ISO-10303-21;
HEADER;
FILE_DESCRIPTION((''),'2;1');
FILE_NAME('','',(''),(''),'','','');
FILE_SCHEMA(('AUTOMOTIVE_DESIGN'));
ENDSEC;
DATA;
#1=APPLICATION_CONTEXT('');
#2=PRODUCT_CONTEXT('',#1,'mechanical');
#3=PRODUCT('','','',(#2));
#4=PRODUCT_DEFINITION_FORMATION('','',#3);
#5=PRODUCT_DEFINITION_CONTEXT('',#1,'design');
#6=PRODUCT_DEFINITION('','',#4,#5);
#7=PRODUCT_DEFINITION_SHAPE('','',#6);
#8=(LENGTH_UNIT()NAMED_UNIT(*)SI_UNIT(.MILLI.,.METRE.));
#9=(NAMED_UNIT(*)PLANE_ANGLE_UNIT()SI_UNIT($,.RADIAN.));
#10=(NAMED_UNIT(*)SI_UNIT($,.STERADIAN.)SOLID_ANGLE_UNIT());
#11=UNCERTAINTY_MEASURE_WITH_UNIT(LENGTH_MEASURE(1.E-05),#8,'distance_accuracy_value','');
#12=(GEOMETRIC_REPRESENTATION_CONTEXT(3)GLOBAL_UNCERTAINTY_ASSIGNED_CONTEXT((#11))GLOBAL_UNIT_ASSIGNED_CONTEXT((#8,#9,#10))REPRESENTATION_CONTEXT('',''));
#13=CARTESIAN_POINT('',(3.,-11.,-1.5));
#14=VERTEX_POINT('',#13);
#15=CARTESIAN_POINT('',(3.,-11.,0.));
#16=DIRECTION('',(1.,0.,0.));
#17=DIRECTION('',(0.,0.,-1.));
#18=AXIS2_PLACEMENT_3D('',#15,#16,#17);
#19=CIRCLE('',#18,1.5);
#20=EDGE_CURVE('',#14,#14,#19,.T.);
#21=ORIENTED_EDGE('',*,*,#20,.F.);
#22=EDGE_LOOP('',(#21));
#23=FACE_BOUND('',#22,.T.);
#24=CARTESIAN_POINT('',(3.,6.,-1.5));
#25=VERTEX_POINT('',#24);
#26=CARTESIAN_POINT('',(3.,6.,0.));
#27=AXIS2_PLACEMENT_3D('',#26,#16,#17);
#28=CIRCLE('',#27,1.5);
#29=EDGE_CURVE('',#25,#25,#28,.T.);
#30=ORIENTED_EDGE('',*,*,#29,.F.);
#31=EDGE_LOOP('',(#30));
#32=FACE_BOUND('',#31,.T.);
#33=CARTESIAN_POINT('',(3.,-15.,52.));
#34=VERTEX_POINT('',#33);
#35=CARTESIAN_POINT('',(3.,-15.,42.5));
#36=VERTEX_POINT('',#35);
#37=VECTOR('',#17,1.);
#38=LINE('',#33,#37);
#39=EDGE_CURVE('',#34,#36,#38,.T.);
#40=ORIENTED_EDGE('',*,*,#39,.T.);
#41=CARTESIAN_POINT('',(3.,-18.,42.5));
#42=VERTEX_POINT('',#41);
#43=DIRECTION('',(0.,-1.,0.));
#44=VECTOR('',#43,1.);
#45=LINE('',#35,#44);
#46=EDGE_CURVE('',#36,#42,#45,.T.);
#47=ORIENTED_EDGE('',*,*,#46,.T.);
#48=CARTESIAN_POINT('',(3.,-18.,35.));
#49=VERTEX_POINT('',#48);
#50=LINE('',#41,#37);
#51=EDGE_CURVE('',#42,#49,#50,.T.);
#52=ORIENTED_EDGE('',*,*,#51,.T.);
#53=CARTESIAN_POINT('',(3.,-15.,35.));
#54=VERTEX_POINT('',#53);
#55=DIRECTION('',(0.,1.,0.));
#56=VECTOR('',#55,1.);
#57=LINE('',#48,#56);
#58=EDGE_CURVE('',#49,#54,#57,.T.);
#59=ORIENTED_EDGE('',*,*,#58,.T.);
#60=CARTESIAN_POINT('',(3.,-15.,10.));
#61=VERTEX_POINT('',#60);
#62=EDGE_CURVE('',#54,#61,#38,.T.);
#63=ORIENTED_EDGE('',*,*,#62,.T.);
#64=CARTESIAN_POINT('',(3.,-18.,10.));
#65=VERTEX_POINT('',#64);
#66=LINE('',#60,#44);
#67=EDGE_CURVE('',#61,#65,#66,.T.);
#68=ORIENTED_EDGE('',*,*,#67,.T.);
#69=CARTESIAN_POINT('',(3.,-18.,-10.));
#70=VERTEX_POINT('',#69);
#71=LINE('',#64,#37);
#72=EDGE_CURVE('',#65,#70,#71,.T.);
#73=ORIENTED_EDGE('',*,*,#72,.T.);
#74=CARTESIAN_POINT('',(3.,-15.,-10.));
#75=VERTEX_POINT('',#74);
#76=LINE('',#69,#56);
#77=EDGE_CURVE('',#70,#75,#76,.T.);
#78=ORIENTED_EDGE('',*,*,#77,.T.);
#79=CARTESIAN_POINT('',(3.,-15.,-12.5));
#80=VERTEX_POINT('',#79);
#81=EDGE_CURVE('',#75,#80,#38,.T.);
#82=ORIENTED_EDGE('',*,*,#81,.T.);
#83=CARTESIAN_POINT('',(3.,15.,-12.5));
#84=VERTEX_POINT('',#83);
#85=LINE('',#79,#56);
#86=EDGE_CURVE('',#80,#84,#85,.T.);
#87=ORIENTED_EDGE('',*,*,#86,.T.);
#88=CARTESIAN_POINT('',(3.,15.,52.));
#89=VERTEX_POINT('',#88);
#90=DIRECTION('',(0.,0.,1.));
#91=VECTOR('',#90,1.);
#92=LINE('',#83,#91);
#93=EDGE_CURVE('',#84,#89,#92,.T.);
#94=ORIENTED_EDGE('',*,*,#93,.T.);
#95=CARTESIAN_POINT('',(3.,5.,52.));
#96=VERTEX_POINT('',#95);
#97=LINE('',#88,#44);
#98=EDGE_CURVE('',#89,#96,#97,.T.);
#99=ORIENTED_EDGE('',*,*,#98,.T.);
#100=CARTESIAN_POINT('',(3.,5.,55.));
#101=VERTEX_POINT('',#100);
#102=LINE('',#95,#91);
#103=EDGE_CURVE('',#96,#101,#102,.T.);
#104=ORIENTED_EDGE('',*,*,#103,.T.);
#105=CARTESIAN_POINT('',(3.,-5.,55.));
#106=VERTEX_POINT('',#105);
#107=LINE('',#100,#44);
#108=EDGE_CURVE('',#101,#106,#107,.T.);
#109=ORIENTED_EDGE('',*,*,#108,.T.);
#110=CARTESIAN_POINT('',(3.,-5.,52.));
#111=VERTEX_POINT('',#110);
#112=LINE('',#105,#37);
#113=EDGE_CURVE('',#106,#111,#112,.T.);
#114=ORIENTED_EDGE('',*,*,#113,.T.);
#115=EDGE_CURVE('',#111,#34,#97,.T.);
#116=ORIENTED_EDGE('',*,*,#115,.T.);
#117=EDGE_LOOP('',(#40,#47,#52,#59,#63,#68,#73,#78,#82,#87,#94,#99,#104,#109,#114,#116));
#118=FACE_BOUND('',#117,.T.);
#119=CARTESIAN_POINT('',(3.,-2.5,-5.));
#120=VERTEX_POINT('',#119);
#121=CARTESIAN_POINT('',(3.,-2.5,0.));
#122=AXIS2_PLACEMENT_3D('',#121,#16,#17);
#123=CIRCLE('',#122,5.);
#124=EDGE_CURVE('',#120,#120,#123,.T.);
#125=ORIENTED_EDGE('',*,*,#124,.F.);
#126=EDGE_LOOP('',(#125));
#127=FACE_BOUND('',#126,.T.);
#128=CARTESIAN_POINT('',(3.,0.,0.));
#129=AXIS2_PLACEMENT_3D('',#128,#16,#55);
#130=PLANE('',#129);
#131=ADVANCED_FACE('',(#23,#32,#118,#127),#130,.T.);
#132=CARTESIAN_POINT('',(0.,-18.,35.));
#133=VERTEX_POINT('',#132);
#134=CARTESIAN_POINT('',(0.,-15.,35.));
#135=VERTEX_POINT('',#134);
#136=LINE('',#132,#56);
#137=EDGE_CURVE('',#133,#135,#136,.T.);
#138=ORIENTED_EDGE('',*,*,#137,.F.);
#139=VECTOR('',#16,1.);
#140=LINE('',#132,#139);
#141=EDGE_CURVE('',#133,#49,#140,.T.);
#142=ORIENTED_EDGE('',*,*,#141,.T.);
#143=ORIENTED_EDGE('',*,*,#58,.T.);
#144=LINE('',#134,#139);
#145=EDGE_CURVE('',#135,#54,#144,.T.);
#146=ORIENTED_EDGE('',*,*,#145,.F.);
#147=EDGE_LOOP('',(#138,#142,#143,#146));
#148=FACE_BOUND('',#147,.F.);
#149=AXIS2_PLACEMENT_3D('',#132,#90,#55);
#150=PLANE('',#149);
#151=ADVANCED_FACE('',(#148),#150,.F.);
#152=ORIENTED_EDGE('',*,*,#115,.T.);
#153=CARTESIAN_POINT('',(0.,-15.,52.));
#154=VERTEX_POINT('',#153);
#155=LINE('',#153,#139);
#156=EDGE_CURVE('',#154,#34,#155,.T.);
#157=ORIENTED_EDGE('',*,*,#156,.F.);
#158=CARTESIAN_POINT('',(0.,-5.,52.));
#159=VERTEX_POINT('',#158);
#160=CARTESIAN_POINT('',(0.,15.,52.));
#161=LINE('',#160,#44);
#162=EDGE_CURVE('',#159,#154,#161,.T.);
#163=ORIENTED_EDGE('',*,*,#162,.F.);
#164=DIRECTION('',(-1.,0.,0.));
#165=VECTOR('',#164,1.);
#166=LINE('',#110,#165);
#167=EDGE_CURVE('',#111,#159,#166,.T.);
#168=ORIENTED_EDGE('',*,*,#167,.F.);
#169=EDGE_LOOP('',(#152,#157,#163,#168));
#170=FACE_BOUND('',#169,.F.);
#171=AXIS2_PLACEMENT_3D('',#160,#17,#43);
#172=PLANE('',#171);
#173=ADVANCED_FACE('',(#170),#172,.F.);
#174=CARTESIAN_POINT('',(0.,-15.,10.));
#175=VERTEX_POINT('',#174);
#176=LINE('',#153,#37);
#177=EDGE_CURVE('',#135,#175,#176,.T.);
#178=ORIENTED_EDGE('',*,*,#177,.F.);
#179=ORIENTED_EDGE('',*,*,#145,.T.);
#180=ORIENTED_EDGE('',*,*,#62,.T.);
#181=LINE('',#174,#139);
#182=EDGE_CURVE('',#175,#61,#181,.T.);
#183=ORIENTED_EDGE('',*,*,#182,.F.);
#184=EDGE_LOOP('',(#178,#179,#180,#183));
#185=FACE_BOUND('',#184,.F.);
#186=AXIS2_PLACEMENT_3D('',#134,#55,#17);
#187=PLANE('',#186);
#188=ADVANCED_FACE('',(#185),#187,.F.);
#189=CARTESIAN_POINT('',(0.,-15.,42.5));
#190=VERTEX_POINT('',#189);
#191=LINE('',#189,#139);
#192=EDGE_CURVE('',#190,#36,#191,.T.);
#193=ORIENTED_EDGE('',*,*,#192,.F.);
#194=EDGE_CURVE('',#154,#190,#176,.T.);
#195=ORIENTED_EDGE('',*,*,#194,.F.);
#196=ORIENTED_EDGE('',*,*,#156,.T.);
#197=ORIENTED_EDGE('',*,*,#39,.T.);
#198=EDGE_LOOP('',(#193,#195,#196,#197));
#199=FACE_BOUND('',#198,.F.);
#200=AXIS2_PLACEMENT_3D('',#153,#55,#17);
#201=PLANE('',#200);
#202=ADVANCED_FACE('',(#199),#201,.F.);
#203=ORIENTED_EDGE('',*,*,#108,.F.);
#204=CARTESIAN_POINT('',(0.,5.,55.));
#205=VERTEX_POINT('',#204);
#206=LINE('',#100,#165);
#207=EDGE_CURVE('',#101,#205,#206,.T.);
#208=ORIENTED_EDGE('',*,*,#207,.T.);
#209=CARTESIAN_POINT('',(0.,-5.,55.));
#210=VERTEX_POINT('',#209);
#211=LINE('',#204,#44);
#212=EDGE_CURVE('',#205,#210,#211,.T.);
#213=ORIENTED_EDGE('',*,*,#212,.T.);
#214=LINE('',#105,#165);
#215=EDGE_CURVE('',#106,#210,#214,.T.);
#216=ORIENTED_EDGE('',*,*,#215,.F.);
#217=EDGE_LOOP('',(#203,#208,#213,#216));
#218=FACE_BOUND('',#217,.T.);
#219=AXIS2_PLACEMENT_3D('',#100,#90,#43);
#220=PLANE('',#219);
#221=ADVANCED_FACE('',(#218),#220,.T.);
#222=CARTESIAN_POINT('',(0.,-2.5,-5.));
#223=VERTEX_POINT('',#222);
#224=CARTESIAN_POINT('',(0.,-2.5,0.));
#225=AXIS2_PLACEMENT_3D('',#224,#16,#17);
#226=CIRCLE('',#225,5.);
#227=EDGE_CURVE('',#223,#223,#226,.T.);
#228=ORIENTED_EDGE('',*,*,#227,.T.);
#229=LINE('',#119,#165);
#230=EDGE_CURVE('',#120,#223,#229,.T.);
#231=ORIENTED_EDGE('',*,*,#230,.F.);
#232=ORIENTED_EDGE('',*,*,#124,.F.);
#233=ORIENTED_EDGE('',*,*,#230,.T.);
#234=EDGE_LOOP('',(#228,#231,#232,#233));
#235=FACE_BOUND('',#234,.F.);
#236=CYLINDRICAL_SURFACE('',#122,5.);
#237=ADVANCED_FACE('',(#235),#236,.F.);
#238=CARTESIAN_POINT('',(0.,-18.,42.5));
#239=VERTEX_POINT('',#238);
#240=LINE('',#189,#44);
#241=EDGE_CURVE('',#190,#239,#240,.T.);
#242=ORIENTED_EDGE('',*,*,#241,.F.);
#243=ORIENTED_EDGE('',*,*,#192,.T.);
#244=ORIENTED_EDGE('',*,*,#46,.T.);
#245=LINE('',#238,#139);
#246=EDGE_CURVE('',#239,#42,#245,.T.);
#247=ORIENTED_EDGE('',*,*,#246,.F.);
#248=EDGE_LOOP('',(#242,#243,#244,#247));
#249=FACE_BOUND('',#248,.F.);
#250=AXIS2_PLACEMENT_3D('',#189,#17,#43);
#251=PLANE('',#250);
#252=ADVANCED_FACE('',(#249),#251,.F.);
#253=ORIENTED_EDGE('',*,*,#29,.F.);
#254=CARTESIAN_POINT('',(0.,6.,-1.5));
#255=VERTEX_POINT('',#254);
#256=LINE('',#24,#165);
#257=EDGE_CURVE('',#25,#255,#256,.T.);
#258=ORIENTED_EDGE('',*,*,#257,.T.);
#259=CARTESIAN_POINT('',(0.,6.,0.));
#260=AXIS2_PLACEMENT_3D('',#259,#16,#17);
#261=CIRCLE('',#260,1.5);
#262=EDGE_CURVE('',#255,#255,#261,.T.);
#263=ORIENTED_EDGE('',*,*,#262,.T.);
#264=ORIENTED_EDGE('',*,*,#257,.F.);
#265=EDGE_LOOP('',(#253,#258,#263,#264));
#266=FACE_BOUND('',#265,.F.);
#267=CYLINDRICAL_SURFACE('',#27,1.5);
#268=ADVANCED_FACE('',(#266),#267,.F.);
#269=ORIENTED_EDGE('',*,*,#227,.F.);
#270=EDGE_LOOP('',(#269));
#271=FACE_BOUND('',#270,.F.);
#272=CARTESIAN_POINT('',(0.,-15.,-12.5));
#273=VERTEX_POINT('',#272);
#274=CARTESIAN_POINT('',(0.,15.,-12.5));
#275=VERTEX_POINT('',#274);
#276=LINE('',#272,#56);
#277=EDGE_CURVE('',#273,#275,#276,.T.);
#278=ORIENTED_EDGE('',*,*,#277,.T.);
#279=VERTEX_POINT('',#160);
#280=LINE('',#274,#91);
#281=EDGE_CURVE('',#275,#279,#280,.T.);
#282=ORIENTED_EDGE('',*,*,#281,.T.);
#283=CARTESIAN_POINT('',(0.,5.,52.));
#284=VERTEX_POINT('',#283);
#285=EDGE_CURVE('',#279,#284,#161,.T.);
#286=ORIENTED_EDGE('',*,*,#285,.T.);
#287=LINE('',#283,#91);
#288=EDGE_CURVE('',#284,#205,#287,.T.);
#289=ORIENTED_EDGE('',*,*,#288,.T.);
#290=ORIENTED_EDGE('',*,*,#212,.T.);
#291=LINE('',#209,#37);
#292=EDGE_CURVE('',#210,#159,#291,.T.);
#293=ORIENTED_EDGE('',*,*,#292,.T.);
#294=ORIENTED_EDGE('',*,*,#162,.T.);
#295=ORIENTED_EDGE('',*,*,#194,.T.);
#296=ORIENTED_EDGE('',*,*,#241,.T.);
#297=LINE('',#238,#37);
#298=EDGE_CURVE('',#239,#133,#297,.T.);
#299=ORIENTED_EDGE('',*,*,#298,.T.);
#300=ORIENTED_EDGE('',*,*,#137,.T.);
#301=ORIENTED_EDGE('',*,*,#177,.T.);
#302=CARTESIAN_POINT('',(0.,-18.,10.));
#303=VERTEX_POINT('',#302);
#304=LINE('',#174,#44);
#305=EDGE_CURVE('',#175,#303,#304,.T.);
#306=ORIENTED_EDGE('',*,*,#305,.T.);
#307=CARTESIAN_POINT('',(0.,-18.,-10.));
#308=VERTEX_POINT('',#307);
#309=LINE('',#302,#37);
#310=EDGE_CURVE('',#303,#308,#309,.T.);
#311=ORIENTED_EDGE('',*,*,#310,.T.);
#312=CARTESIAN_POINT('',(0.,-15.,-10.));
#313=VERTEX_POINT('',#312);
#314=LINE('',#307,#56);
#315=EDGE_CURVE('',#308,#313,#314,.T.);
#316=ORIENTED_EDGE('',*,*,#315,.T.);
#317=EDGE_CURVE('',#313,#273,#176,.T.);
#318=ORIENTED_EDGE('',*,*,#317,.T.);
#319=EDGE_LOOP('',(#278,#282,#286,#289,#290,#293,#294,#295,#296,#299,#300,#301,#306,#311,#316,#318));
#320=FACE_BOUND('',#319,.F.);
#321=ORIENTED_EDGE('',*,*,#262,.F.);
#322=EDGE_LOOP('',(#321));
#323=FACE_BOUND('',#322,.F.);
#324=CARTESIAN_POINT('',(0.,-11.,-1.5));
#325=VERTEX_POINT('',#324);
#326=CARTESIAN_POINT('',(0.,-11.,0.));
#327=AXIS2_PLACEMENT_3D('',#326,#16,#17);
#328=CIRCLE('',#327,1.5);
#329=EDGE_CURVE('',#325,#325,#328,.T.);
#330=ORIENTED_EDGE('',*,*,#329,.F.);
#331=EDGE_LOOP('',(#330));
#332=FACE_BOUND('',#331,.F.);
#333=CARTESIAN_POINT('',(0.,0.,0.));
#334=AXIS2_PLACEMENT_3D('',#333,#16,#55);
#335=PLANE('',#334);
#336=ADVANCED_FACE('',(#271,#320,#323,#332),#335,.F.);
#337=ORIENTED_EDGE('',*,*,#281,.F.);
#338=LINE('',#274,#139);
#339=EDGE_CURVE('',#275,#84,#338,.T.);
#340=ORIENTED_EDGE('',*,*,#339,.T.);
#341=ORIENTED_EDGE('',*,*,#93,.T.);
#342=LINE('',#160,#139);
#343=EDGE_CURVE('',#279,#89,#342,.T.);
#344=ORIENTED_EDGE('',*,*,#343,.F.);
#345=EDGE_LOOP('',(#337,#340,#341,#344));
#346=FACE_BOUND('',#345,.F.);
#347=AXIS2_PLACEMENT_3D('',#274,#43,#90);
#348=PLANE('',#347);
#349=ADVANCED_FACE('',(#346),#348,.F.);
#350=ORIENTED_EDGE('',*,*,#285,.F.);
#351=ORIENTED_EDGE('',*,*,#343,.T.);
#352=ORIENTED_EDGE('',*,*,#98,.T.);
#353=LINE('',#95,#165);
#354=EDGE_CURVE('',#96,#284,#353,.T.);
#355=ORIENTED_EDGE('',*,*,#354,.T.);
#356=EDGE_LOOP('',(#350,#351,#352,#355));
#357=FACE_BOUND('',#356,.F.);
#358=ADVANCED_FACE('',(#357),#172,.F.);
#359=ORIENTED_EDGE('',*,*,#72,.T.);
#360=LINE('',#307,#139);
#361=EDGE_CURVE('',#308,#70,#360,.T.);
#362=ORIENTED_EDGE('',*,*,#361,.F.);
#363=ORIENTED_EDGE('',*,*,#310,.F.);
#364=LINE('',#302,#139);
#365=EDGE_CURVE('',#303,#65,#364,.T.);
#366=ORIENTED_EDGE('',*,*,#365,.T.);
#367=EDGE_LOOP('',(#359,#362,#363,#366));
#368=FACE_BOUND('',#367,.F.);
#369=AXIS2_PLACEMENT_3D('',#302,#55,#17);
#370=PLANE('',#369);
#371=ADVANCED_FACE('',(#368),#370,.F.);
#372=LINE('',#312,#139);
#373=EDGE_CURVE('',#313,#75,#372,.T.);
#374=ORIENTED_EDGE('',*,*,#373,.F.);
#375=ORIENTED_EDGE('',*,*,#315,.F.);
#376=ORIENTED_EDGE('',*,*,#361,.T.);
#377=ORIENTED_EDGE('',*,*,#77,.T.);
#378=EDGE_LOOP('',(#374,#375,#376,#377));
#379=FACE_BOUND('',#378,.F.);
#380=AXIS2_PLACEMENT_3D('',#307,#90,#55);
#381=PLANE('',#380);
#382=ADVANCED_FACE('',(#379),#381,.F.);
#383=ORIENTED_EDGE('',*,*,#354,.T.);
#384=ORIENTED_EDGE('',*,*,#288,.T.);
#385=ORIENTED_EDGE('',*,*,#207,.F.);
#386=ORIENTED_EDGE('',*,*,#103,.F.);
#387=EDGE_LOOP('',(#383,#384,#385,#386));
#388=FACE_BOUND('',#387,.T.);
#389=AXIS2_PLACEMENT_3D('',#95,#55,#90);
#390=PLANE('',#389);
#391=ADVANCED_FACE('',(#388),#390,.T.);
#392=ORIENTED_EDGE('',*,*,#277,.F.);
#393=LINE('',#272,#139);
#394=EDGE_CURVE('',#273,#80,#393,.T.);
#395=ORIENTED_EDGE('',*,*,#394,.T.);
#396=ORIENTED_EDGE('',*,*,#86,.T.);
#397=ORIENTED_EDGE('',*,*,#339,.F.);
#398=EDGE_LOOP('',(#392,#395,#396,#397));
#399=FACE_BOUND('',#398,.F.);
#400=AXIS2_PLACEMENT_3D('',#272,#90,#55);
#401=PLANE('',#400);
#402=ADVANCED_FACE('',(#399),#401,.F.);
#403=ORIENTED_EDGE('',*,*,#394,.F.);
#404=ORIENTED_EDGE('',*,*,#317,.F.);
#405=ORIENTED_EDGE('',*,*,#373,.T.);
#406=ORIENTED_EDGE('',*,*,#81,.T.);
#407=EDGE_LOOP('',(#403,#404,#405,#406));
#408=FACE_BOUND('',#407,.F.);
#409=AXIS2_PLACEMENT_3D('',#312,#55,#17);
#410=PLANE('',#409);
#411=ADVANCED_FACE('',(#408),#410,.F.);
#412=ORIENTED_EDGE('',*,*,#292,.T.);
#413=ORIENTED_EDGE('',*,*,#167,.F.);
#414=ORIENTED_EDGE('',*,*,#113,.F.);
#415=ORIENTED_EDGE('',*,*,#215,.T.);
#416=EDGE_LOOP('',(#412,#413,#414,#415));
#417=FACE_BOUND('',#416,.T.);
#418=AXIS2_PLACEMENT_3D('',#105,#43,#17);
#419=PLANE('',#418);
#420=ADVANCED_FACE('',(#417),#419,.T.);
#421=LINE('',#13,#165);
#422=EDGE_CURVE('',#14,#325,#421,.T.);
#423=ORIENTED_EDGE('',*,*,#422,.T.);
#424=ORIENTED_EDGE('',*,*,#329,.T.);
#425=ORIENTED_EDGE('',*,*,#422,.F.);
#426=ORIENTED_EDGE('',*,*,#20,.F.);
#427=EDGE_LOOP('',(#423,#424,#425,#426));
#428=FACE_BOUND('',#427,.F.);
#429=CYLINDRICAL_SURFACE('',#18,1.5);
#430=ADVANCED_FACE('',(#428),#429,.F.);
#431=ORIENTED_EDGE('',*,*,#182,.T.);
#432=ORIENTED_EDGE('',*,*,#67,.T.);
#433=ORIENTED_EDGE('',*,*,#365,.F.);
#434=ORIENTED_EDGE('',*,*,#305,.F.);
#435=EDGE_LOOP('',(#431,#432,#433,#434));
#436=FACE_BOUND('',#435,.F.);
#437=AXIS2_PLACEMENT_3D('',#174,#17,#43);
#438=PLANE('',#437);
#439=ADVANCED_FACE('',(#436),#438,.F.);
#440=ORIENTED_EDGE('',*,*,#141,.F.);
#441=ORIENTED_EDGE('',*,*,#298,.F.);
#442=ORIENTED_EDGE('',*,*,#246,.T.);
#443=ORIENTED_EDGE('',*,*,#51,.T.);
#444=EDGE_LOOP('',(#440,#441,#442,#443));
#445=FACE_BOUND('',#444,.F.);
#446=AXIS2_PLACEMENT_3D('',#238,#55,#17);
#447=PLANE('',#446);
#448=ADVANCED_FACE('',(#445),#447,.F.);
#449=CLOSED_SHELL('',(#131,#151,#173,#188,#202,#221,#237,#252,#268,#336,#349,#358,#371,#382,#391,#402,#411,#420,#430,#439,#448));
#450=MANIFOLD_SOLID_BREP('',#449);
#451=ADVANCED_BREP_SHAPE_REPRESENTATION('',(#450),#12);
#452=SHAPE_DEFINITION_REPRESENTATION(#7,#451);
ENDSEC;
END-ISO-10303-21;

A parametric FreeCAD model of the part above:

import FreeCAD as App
import Part
import Sketcher

V = App.Vector

doc = App.newDocument("Part")
body = doc.addObject("PartDesign::Body", "Body")

sketch1 = body.newObject("Sketcher::SketchObject", "Sketch")
sketch1.AttachmentSupport = (doc.getObject("YZ_Plane"), [""])
sketch1.MapMode = "FlatFace"
sketch1.addGeometry([
    Part.LineSegment(V(15, -12.5, 0), V(15, 52, 0)),
    Part.LineSegment(V(15, 52, 0), V(-15, 52, 0)),
    Part.LineSegment(V(-15, 52, 0), V(-15, 42.5, 0)),
    Part.LineSegment(V(-15, 42.5, 0), V(-18, 42.5, 0)),
    Part.LineSegment(V(-18, 42.5, 0), V(-18, 35, 0)),
    Part.LineSegment(V(-18, 35, 0), V(-15, 35, 0)),
    Part.LineSegment(V(-15, 35, 0), V(-15, 10, 0)),
    Part.LineSegment(V(-15, 10, 0), V(-18, 10, 0)),
    Part.LineSegment(V(-18, 10, 0), V(-18, -10, 0)),
    Part.LineSegment(V(-18, -10, 0), V(-15, -10, 0)),
    Part.LineSegment(V(-15, -10, 0), V(-15, -12.5, 0)),
    Part.LineSegment(V(-15, -12.5, 0), V(15, -12.5, 0)),
], False)
sketch1.addConstraint([
    Sketcher.Constraint("Coincident", 0, 2, 1, 1),
    Sketcher.Constraint("Coincident", 1, 2, 2, 1),
    Sketcher.Constraint("Coincident", 2, 2, 3, 1),
    Sketcher.Constraint("Coincident", 3, 2, 4, 1),
    Sketcher.Constraint("Coincident", 4, 2, 5, 1),
    Sketcher.Constraint("Coincident", 5, 2, 6, 1),
    Sketcher.Constraint("Coincident", 6, 2, 7, 1),
    Sketcher.Constraint("Coincident", 7, 2, 8, 1),
    Sketcher.Constraint("Coincident", 8, 2, 9, 1),
    Sketcher.Constraint("Coincident", 9, 2, 10, 1),
    Sketcher.Constraint("Coincident", 10, 2, 11, 1),
    Sketcher.Constraint("Coincident", 11, 2, 0, 1),
    Sketcher.Constraint("Vertical", 0),
    Sketcher.Constraint("Horizontal", 1),
    Sketcher.Constraint("Vertical", 2),
    Sketcher.Constraint("Horizontal", 3),
    Sketcher.Constraint("Vertical", 4),
    Sketcher.Constraint("Horizontal", 5),
    Sketcher.Constraint("Vertical", 6),
    Sketcher.Constraint("Horizontal", 7),
    Sketcher.Constraint("Vertical", 8),
    Sketcher.Constraint("Horizontal", 9),
    Sketcher.Constraint("Vertical", 10),
    Sketcher.Constraint("Horizontal", 11),
    Sketcher.Constraint("Symmetric", 6, 2, 9, 2, -1),
    Sketcher.Constraint("Vertical", 2, 2, 5, 2),
    Sketcher.Constraint("Vertical", 4, 2, 7, 2),
    Sketcher.Constraint("DistanceX", 1, 2, 1, 1, 30.0),
    Sketcher.Constraint("DistanceX", 3, 2, 3, 1, 3.0),
    Sketcher.Constraint("DistanceY", 6, 2, 6, 1, 25.0),
    Sketcher.Constraint("DistanceY", 8, 2, 8, 1, 20.0),
    Sketcher.Constraint("DistanceY", 4, 2, 4, 1, 7.5),
    Sketcher.Constraint("DistanceY", -1, 1, 0, 2, 52.0),
    Sketcher.Constraint("DistanceY", 10, 2, -1, 1, 12.5),
    Sketcher.Constraint("DistanceX", -1, 1, 0, 2, 15.0),
])
pad1 = body.newObject("PartDesign::Pad", "Pad")
pad1.Profile = sketch1
pad1.Length = 3

sketch2 = body.newObject("Sketcher::SketchObject", "Sketch001")
sketch2.AttachmentSupport = (doc.getObject("YZ_Plane"), [""])
sketch2.MapMode = "FlatFace"
sketch2.AttachmentOffset = App.Placement(V(0, 0, 3), App.Rotation())
sketch2.addGeometry([
    Part.Circle(V(-2.5, 0, 0), V(0, 0, 1), 5),
    Part.Circle(V(6, 0, 0), V(0, 0, 1), 1.5),
    Part.Circle(V(-11, 0, 0), V(0, 0, 1), 1.5),
], False)
sketch2.addConstraint([
    Sketcher.Constraint("Equal", 1, 2),
    Sketcher.Constraint("PointOnObject", 0, 3, -1),
    Sketcher.Constraint("PointOnObject", 1, 3, -1),
    Sketcher.Constraint("PointOnObject", 2, 3, -1),
    Sketcher.Constraint("Diameter", 0, 10.0),
    Sketcher.Constraint("Diameter", 1, 3.0),
    Sketcher.Constraint("DistanceX", 2, 3, 1, 3, 17.0),
    Sketcher.Constraint("DistanceX", 0, 3, 1, 3, 8.5),
    Sketcher.Constraint("DistanceX", -1, 1, 1, 3, 6.0),
])
pocket1 = body.newObject("PartDesign::Pocket", "Pocket")
pocket1.Profile = sketch2
pocket1.Length = 3

sketch3 = body.newObject("Sketcher::SketchObject", "Sketch002")
sketch3.AttachmentSupport = (doc.getObject("YZ_Plane"), [""])
sketch3.MapMode = "FlatFace"
sketch3.AttachmentOffset = App.Placement(V(0, 0, 3), App.Rotation())
sketch3.addGeometry([
    Part.LineSegment(V(-5, 52, 0), V(5, 52, 0)),
    Part.LineSegment(V(5, 52, 0), V(5, 55, 0)),
    Part.LineSegment(V(5, 55, 0), V(-5, 55, 0)),
    Part.LineSegment(V(-5, 55, 0), V(-5, 52, 0)),
], False)
sketch3.addConstraint([
    Sketcher.Constraint("Coincident", 0, 2, 1, 1),
    Sketcher.Constraint("Coincident", 1, 2, 2, 1),
    Sketcher.Constraint("Coincident", 2, 2, 3, 1),
    Sketcher.Constraint("Coincident", 3, 2, 0, 1),
    Sketcher.Constraint("Horizontal", 0),
    Sketcher.Constraint("Vertical", 1),
    Sketcher.Constraint("Horizontal", 2),
    Sketcher.Constraint("Vertical", 3),
    Sketcher.Constraint("DistanceX", 0, 1, 0, 2, 10.0),
    Sketcher.Constraint("DistanceY", 1, 1, 1, 2, 3.0),
    Sketcher.Constraint("DistanceX", -1, 1, 0, 2, 5.0),
    Sketcher.Constraint("DistanceY", -1, 1, 0, 2, 52.0),
])
pad2 = body.newObject("PartDesign::Pad", "Pad001")
pad2.Profile = sketch3
pad2.Length = 3
pad2.Reversed = True

doc.recompute()
